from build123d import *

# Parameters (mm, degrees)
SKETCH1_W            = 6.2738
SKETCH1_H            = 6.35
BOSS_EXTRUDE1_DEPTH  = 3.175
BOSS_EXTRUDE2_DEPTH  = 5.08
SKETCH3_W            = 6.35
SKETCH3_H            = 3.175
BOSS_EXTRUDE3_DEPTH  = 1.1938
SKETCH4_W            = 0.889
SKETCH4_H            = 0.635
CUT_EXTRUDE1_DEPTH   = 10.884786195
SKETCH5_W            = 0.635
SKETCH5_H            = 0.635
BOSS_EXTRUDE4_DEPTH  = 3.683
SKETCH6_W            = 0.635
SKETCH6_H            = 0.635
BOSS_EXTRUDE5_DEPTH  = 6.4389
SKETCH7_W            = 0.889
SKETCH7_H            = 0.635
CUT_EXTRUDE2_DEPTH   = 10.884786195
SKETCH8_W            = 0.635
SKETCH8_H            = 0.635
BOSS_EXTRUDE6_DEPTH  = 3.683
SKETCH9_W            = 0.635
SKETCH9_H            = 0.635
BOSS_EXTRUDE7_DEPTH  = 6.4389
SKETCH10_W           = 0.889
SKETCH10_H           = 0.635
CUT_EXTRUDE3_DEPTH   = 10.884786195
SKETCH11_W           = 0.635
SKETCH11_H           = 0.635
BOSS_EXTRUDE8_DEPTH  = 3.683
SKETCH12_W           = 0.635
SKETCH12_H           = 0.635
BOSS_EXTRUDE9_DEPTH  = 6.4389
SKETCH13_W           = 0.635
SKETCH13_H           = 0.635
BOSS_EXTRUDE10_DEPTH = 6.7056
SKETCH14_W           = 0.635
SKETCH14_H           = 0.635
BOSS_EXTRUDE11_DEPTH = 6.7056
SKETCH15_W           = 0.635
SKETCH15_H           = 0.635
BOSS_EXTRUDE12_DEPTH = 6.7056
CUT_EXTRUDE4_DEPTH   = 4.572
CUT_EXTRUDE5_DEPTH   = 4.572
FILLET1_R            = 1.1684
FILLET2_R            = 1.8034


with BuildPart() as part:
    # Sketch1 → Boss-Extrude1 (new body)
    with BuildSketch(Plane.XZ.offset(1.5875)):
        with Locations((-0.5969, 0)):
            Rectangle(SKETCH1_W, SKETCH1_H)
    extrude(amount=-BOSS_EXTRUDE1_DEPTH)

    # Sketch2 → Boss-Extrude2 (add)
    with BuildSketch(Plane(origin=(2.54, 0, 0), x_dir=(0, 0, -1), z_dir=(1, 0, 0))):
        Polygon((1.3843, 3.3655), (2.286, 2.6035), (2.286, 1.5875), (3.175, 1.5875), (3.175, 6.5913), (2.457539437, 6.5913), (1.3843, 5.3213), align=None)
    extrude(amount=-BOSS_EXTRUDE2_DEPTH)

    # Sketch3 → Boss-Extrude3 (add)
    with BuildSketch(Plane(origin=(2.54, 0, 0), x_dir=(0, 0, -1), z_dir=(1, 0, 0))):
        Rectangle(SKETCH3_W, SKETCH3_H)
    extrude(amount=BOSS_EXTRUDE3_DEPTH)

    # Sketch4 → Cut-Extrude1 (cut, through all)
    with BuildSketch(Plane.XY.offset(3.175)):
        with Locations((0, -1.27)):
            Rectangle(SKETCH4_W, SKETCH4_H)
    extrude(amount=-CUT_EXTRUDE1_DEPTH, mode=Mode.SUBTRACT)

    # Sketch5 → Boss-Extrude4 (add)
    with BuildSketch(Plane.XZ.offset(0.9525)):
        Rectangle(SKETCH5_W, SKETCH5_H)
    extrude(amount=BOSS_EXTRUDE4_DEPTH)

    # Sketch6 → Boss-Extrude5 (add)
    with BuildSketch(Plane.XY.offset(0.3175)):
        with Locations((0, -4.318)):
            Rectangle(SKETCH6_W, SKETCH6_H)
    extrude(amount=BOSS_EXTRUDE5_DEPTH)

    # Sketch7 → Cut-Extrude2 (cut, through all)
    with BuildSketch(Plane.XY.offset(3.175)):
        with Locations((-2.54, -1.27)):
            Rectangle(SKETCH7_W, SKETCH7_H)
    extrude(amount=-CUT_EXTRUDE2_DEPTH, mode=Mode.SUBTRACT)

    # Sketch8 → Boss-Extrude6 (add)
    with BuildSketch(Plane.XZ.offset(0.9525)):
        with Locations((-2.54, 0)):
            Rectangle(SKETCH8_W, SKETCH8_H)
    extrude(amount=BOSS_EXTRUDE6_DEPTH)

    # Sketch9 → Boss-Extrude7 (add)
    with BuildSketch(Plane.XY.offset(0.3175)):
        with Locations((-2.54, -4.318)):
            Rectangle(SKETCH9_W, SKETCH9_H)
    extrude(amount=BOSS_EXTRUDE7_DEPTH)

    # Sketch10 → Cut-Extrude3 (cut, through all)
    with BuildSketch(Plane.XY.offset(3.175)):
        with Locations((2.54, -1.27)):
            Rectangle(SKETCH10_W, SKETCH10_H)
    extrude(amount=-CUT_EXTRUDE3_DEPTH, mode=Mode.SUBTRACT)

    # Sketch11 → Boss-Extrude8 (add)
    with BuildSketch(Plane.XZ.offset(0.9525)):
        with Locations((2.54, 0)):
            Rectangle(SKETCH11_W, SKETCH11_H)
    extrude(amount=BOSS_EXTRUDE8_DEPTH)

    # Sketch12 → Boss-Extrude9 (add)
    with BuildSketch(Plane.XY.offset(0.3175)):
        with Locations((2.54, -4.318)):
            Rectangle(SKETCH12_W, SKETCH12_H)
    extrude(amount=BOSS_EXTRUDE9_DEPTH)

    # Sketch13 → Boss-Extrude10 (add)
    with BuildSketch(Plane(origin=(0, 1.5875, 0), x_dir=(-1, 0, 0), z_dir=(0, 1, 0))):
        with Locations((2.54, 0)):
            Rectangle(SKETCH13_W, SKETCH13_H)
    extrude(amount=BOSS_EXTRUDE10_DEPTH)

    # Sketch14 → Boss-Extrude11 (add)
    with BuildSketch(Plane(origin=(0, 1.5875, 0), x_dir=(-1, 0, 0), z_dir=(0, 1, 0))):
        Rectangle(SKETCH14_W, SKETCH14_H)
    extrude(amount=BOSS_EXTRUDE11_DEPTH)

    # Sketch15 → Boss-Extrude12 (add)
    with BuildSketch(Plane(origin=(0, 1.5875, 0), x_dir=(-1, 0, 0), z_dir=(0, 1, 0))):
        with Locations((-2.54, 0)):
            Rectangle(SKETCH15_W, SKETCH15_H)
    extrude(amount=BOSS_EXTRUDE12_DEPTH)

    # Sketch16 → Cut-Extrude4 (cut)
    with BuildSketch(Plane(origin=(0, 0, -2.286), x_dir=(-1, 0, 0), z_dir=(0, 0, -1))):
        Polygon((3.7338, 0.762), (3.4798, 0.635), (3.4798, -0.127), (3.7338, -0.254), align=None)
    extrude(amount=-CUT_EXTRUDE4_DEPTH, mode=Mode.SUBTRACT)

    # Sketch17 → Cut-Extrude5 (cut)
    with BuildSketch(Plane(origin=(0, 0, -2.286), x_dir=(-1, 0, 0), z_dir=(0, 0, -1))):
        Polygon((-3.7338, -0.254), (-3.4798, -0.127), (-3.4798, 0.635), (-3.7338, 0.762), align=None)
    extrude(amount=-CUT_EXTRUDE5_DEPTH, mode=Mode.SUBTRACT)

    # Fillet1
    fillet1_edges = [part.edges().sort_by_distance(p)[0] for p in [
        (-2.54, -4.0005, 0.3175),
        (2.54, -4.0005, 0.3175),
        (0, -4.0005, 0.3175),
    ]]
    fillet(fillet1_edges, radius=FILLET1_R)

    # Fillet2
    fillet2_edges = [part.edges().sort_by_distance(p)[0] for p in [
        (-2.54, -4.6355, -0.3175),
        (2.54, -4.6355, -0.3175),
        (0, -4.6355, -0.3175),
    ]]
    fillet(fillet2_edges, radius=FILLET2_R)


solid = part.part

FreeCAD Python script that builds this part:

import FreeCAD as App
import Part
import Sketcher
Q = App.Units.Quantity


def edges_at(feature, points):
    """Names of the edges that pass closest to the given points."""
    edges = feature.Shape.Edges
    near = lambda p: min(range(len(edges)), key=lambda i: edges[i].distToShape(Part.Vertex(*p))[0])
    return sorted({f"Edge{near(p) + 1}" for p in points})


def add_polygon(sketch, points):
    """Adds a closed chain of lines whose ends are joined by coincident constraints."""
    first, n = sketch.GeometryCount, len(points)
    for a, b in zip(points, points[1:] + points[:1]):
        sketch.addGeometry(Part.LineSegment(App.Vector(*a, 0), App.Vector(*b, 0)), False)
    for i in range(n):
        sketch.addConstraint(Sketcher.Constraint("Coincident", first + i, 2, first + (i + 1) % n, 1))

doc = App.newDocument("Part")
params = doc.addObject("Spreadsheet::Sheet", "Params")
for row, (alias, value) in enumerate([
    ("sketch1_height", "0.25 in"),
    ("sketch1_width", "0.247 in"),
    ("pad1_length", "0.125 in"),
    ("sketch2_width", "0.04 in"),
    ("sketch2_width2", "0.197 in"),
    ("sketch2_width3", "0.077 in"),
    ("sketch2_height", "0.035 in"),
    ("pad2_length", "0.2 in"),
    ("sketch3_height", "0.25 in"),
    ("sketch3_width", "0.125 in"),
    ("pad3_length", "0.047 in"),
    ("sketch4_width", "0.035 in"),
    ("sketch4_height", "0.025 in"),
    ("sketch5_width", "0.025 in"),
    ("pad4_length", "0.145 in"),
    ("sketch6_width", "0.025 in"),
    ("pad5_length", "0.2535 in"),
    ("sketch7_width", "0.035 in"),
    ("sketch7_height", "0.025 in"),
    ("sketch8_width", "0.025 in"),
    ("pad6_length", "0.145 in"),
    ("sketch9_width", "0.025 in"),
    ("pad7_length", "0.2535 in"),
    ("sketch10_width", "0.035 in"),
    ("sketch10_height", "0.025 in"),
    ("sketch11_width", "0.025 in"),
    ("pad8_length", "0.145 in"),
    ("sketch12_width", "0.025 in"),
    ("pad9_length", "0.2535 in"),
    ("sketch13_width", "0.025 in"),
    ("pad10_length", "0.264 in"),
    ("sketch14_width", "0.025 in"),
    ("pad11_length", "0.264 in"),
    ("sketch15_width", "0.025 in"),
    ("pad12_length", "0.264 in"),
    ("sketch16_height", "0.03 in"),
    ("sketch16_height2", "0.04 in"),
    ("pocket4_length", "0.18 in"),
    ("sketch17_height", "0.03 in"),
    ("sketch17_height2", "0.04 in"),
    ("pocket5_length", "0.18 in"),
    ("fillet_radius", "0.046 in"),
    ("fillet2_radius", "0.071 in"),
], start=1):
    params.set(f"A{row}", alias)
    params.set(f"B{row}", "=" + value)
    params.setAlias(f"B{row}", alias)

body = doc.addObject("PartDesign::Body", "Body")

sketch1 = body.newObject("Sketcher::SketchObject", "Sketch")
sketch1.AttachmentSupport = (doc.getObject("XZ_Plane"), [""])
sketch1.MapMode = "FlatFace"
sketch1.AttachmentOffset = App.Placement(App.Vector(0, 0, 0.0625 * 25.4), App.Rotation())
add_polygon(sketch1, [(-4, 3), (-4, -3), (3, -3), (3, 3)])
sketch1.addConstraint([
    Sketcher.Constraint("Vertical", 0),
    Sketcher.Constraint("Horizontal", 1),
    Sketcher.Constraint("Vertical", 2),
    Sketcher.Constraint("Horizontal", 3),
    Sketcher.Constraint("DistanceY", 0, 2, 0, 1, Q("0.25 in")),
    Sketcher.Constraint("DistanceX", -1, 1, 1, 2, Q("0.1 in")),
    Sketcher.Constraint("DistanceX", 1, 1, 1, 2, Q("0.247 in")),
    Sketcher.Constraint("DistanceY", 0, 2, -1, 1, Q("0.125 in")),
])
sketch1.setExpression("Constraints[8]", "Params.sketch1_height")
sketch1.setExpression("Constraints[10]", "Params.sketch1_width")
pad1 = body.newObject("PartDesign::Pad", "Pad")
pad1.Profile = sketch1
pad1.setExpression("Length", "Params.pad1_length")
pad1.Reversed = True

sketch2 = body.newObject("Sketcher::SketchObject", "Sketch001")
sketch2.AttachmentSupport = (doc.getObject("YZ_Plane"), [""])
sketch2.MapMode = "FlatFace"
sketch2.AttachmentOffset = App.Placement(App.Vector(0, 0, 0.1 * 25.4), App.Rotation())
add_polygon(sketch2, [(3.4, -1.4), (2.6, -2.3), (1.6, -2.3), (1.6, -3.2), (6.6, -3.2), (6.6, -2.5), (5.3, -1.4)])
sketch2.addConstraint([
    Sketcher.Constraint("Horizontal", 1),
    Sketcher.Constraint("Vertical", 2),
    Sketcher.Constraint("Horizontal", 3),
    Sketcher.Constraint("Vertical", 4),
    Sketcher.Constraint("Horizontal", 6),
    Sketcher.Constraint("Perpendicular", 0, 5),
    Sketcher.Constraint("DistanceX", 1, 2, 1, 1, Q("0.04 in")),
    Sketcher.Constraint("DistanceX", 3, 1, 3, 2, Q("0.197 in")),
    Sketcher.Constraint("DistanceX", 6, 2, 6, 1, Q("0.077 in")),
    Sketcher.Constraint("DistanceY", 2, 2, 2, 1, Q("0.035 in")),
    Sketcher.Constraint("DistanceY", 0, 2, -1, 1, Q("0.09 in")),
    Sketcher.Constraint("DistanceX", 5, 2, 4, 2, Q("0.05 in")),
    Sketcher.Constraint("DistanceX", -1, 1, 1, 2, Q("0.0625 in")),
    Sketcher.Constraint("DistanceY", 5, 2, -1, 1, Q("0.0545 in")),
])
sketch2.setExpression("Constraints[13]", "Params.sketch2_width")
sketch2.setExpression("Constraints[14]", "Params.sketch2_width2")
sketch2.setExpression("Constraints[15]", "Params.sketch2_width3")
sketch2.setExpression("Constraints[16]", "Params.sketch2_height")
pad2 = body.newObject("PartDesign::Pad", "Pad001")
pad2.Profile = sketch2
pad2.setExpression("Length", "Params.pad2_length")
pad2.Reversed = True

sketch3 = body.newObject("Sketcher::SketchObject", "Sketch002")
sketch3.AttachmentSupport = (doc.getObject("YZ_Plane"), [""])
sketch3.MapMode = "FlatFace"
sketch3.AttachmentOffset = App.Placement(App.Vector(0, 0, 0.1 * 25.4), App.Rotation())
add_polygon(sketch3, [(1.6, 3.2), (-1.6, 3.2), (-1.6, -3.2), (1.6, -3.2)])
sketch3.addConstraint([
    Sketcher.Constraint("Horizontal", 0),
    Sketcher.Constraint("Vertical", 1),
    Sketcher.Constraint("Horizontal", 2),
    Sketcher.Constraint("Vertical", 3),
    Sketcher.Constraint("Symmetric", 0, 2, 2, 2, -1, 1),
    Sketcher.Constraint("DistanceY", 1, 2, 1, 1, Q("0.25 in")),
    Sketcher.Constraint("DistanceX", 0, 2, 0, 1, Q("0.125 in")),
])
sketch3.setExpression("Constraints[9]", "Params.sketch3_height")
sketch3.setExpression("Constraints[10]", "Params.sketch3_width")
pad3 = body.newObject("PartDesign::Pad", "Pad002")
pad3.Profile = sketch3
pad3.setExpression("Length", "Params.pad3_length")

sketch4 = body.newObject("Sketcher::SketchObject", "Sketch003")
sketch4.AttachmentSupport = (doc.getObject("XY_Plane"), [""])
sketch4.MapMode = "FlatFace"
sketch4.AttachmentOffset = App.Placement(App.Vector(0, 0, 0.125 * 25.4), App.Rotation())
add_polygon(sketch4, [(-0.4, -1), (-0.4, -1.6), (0.4, -1.6), (0.4, -1)])
sketch4.addConstraint([
    Sketcher.Constraint("Vertical", 0),
    Sketcher.Constraint("Horizontal", 1),
    Sketcher.Constraint("Vertical", 2),
    Sketcher.Constraint("Horizontal", 3),
    Sketcher.Constraint("DistanceX", 1, 1, 1, 2, Q("0.035 in")),
    Sketcher.Constraint("DistanceY", 0, 2, 0, 1, Q("0.025 in")),
    Sketcher.Constraint("DistanceY", 0, 2, -1, 1, Q("0.0625 in")),
    Sketcher.Constraint("DistanceX", 0, 2, -1, 1, Q("0.0175 in")),
])
sketch4.setExpression("Constraints[8]", "Params.sketch4_width")
sketch4.setExpression("Constraints[9]", "Params.sketch4_height")
pocket1 = body.newObject("PartDesign::Pocket", "Pocket")
pocket1.Profile = sketch4
pocket1.Type = "ThroughAll"

sketch5 = body.newObject("Sketcher::SketchObject", "Sketch004")
sketch5.AttachmentSupport = (doc.getObject("XZ_Plane"), [""])
sketch5.MapMode = "FlatFace"
sketch5.AttachmentOffset = App.Placement(App.Vector(0, 0, 0.0375 * 25.4), App.Rotation())
add_polygon(sketch5, [(-0.3, 0.3), (-0.3, -0.3), (0.3, -0.3), (0.3, 0.3)])
sketch5.addConstraint([
    Sketcher.Constraint("Vertical", 0),
    Sketcher.Constraint("Horizontal", 1),
    Sketcher.Constraint("Vertical", 2),
    Sketcher.Constraint("Horizontal", 3),
    Sketcher.Constraint("Symmetric", 0, 2, 2, 2, -1, 1),
    Sketcher.Constraint("Equal", 3, 0),
    Sketcher.Constraint("DistanceX", 1, 1, 1, 2, Q("0.025 in")),
])
sketch5.setExpression("Constraints[10]", "Params.sketch5_width")
pad4 = body.newObject("PartDesign::Pad", "Pad003")
pad4.Profile = sketch5
pad4.setExpression("Length", "Params.pad4_length")

sketch6 = body.newObject("Sketcher::SketchObject", "Sketch005")
sketch6.AttachmentSupport = (doc.getObject("XY_Plane"), [""])
sketch6.MapMode = "FlatFace"
sketch6.AttachmentOffset = App.Placement(App.Vector(0, 0, 0.0125 * 25.4), App.Rotation())
add_polygon(sketch6, [(-0.3, -4), (-0.3, -4.6), (0.3, -4.6), (0.3, -4)])
sketch6.addConstraint([
    Sketcher.Constraint("Vertical", 0),
    Sketcher.Constraint("Horizontal", 1),
    Sketcher.Constraint("Vertical", 2),
    Sketcher.Constraint("Horizontal", 3),
    Sketcher.Constraint("Equal", 3, 0),
    Sketcher.Constraint("DistanceX", 1, 1, 1, 2, Q("0.025 in")),
    Sketcher.Constraint("DistanceX", 0, 2, -1, 1, Q("0.0125 in")),
    Sketcher.Constraint("DistanceY", 0, 2, -1, 1, Q("0.1825 in")),
])
sketch6.setExpression("Constraints[9]", "Params.sketch6_width")
pad5 = body.newObject("PartDesign::Pad", "Pad004")
pad5.Profile = sketch6
pad5.setExpression("Length", "Params.pad5_length")

sketch7 = body.newObject("Sketcher::SketchObject", "Sketch006")
sketch7.AttachmentSupport = (doc.getObject("XY_Plane"), [""])
sketch7.MapMode = "FlatFace"
sketch7.AttachmentOffset = App.Placement(App.Vector(0, 0, 0.125 * 25.4), App.Rotation())
add_polygon(sketch7, [(-3, -1), (-3, -1.6), (-2.1, -1.6), (-2.1, -1)])
sketch7.addConstraint([
    Sketcher.Constraint("Vertical", 0),
    Sketcher.Constraint("Horizontal", 1),
    Sketcher.Constraint("Vertical", 2),
    Sketcher.Constraint("Horizontal", 3),
    Sketcher.Constraint("DistanceX", 1, 1, 1, 2, Q("0.035 in")),
    Sketcher.Constraint("DistanceY", 0, 2, 0, 1, Q("0.025 in")),
    Sketcher.Constraint("DistanceY", 0, 2, -1, 1, Q("0.0625 in")),
    Sketcher.Constraint("DistanceX", 0, 2, -1, 1, Q("0.1175 in")),
])
sketch7.setExpression("Constraints[8]", "Params.sketch7_width")
sketch7.setExpression("Constraints[9]", "Params.sketch7_height")
pocket2 = body.newObject("PartDesign::Pocket", "Pocket001")
pocket2.Profile = sketch7
pocket2.Type = "ThroughAll"

sketch8 = body.newObject("Sketcher::SketchObject", "Sketch007")
sketch8.AttachmentSupport = (doc.getObject("XZ_Plane"), [""])
sketch8.MapMode = "FlatFace"
sketch8.AttachmentOffset = App.Placement(App.Vector(0, 0, 0.0375 * 25.4), App.Rotation())
add_polygon(sketch8, [(-2.9, 0.3), (-2.9, -0.3), (-2.2, -0.3), (-2.2, 0.3)])
sketch8.addConstraint([
    Sketcher.Constraint("Vertical", 0),
    Sketcher.Constraint("Horizontal", 1),
    Sketcher.Constraint("Vertical", 2),
    Sketcher.Constraint("Horizontal", 3),
    Sketcher.Constraint("Equal", 3, 0),
    Sketcher.Constraint("DistanceX", 1, 1, 1, 2, Q("0.025 in")),
    Sketcher.Constraint("DistanceX", 0, 2, -1, 1, Q("0.1125 in")),
    Sketcher.Constraint("DistanceY", 0, 2, -1, 1, Q("0.0125 in")),
])
sketch8.setExpression("Constraints[9]", "Params.sketch8_width")
pad6 = body.newObject("PartDesign::Pad", "Pad005")
pad6.Profile = sketch8
pad6.setExpression("Length", "Params.pad6_length")

sketch9 = body.newObject("Sketcher::SketchObject", "Sketch008")
sketch9.AttachmentSupport = (doc.getObject("XY_Plane"), [""])
sketch9.MapMode = "FlatFace"
sketch9.AttachmentOffset = App.Placement(App.Vector(0, 0, 0.0125 * 25.4), App.Rotation())
add_polygon(sketch9, [(-2.9, -4), (-2.9, -4.6), (-2.2, -4.6), (-2.2, -4)])
sketch9.addConstraint([
    Sketcher.Constraint("Vertical", 0),
    Sketcher.Constraint("Horizontal", 1),
    Sketcher.Constraint("Vertical", 2),
    Sketcher.Constraint("Horizontal", 3),
    Sketcher.Constraint("Equal", 3, 0),
    Sketcher.Constraint("DistanceX", 1, 1, 1, 2, Q("0.025 in")),
    Sketcher.Constraint("DistanceX", 0, 2, -1, 1, Q("0.1125 in")),
    Sketcher.Constraint("DistanceY", 0, 2, -1, 1, Q("0.1825 in")),
])
sketch9.setExpression("Constraints[9]", "Params.sketch9_width")
pad7 = body.newObject("PartDesign::Pad", "Pad006")
pad7.Profile = sketch9
pad7.setExpression("Length", "Params.pad7_length")

sketch10 = body.newObject("Sketcher::SketchObject", "Sketch009")
sketch10.AttachmentSupport = (doc.getObject("XY_Plane"), [""])
sketch10.MapMode = "FlatFace"
sketch10.AttachmentOffset = App.Placement(App.Vector(0, 0, 0.125 * 25.4), App.Rotation())
add_polygon(sketch10, [(2.1, -1), (2.1, -1.6), (3, -1.6), (3, -1)])
sketch10.addConstraint([
    Sketcher.Constraint("Vertical", 0),
    Sketcher.Constraint("Horizontal", 1),
    Sketcher.Constraint("Vertical", 2),
    Sketcher.Constraint("Horizontal", 3),
    Sketcher.Constraint("DistanceX", 1, 1, 1, 2, Q("0.035 in")),
    Sketcher.Constraint("DistanceY", 0, 2, 0, 1, Q("0.025 in")),
    Sketcher.Constraint("DistanceY", 0, 2, -1, 1, Q("0.0625 in")),
    Sketcher.Constraint("DistanceX", -1, 1, 0, 2, Q("0.0825 in")),
])
sketch10.setExpression("Constraints[8]", "Params.sketch10_width")
sketch10.setExpression("Constraints[9]", "Params.sketch10_height")
pocket3 = body.newObject("PartDesign::Pocket", "Pocket002")
pocket3.Profile = sketch10
pocket3.Type = "ThroughAll"

sketch11 = body.newObject("Sketcher::SketchObject", "Sketch010")
sketch11.AttachmentSupport = (doc.getObject("XZ_Plane"), [""])
sketch11.MapMode = "FlatFace"
sketch11.AttachmentOffset = App.Placement(App.Vector(0, 0, 0.0375 * 25.4), App.Rotation())
add_polygon(sketch11, [(2.2, 0.3), (2.2, -0.3), (2.9, -0.3), (2.9, 0.3)])
sketch11.addConstraint([
    Sketcher.Constraint("Vertical", 0),
    Sketcher.Constraint("Horizontal", 1),
    Sketcher.Constraint("Vertical", 2),
    Sketcher.Constraint("Horizontal", 3),
    Sketcher.Constraint("Equal", 3, 0),
    Sketcher.Constraint("DistanceX", 1, 1, 1, 2, Q("0.025 in")),
    Sketcher.Constraint("DistanceX", -1, 1, 0, 2, Q("0.0875 in")),
    Sketcher.Constraint("DistanceY", 0, 2, -1, 1, Q("0.0125 in")),
])
sketch11.setExpression("Constraints[9]", "Params.sketch11_width")
pad8 = body.newObject("PartDesign::Pad", "Pad007")
pad8.Profile = sketch11
pad8.setExpression("Length", "Params.pad8_length")

sketch12 = body.newObject("Sketcher::SketchObject", "Sketch011")
sketch12.AttachmentSupport = (doc.getObject("XY_Plane"), [""])
sketch12.MapMode = "FlatFace"
sketch12.AttachmentOffset = App.Placement(App.Vector(0, 0, 0.0125 * 25.4), App.Rotation())
add_polygon(sketch12, [(2.2, -4), (2.2, -4.6), (2.9, -4.6), (2.9, -4)])
sketch12.addConstraint([
    Sketcher.Constraint("Vertical", 0),
    Sketcher.Constraint("Horizontal", 1),
    Sketcher.Constraint("Vertical", 2),
    Sketcher.Constraint("Horizontal", 3),
    Sketcher.Constraint("Equal", 3, 0),
    Sketcher.Constraint("DistanceX", 1, 1, 1, 2, Q("0.025 in")),
    Sketcher.Constraint("DistanceX", -1, 1, 0, 2, Q("0.0875 in")),
    Sketcher.Constraint("DistanceY", 0, 2, -1, 1, Q("0.1825 in")),
])
sketch12.setExpression("Constraints[9]", "Params.sketch12_width")
pad9 = body.newObject("PartDesign::Pad", "Pad008")
pad9.Profile = sketch12
pad9.setExpression("Length", "Params.pad9_length")

sketch13 = body.newObject("Sketcher::SketchObject", "Sketch012")
sketch13.AttachmentSupport = (doc.getObject("XZ_Plane"), [""])
sketch13.MapMode = "FlatFace"
sketch13.AttachmentOffset = App.Placement(App.Vector(0, 0, -0.0625 * 25.4), App.Rotation())
add_polygon(sketch13, [(-2.2, 0.3), (-2.2, -0.3), (-2.9, -0.3), (-2.9, 0.3)])
sketch13.addConstraint([
    Sketcher.Constraint("Vertical", 0),
    Sketcher.Constraint("Horizontal", 1),
    Sketcher.Constraint("Vertical", 2),
    Sketcher.Constraint("Horizontal", 3),
    Sketcher.Constraint("Equal", 3, 0),
    Sketcher.Constraint("DistanceX", 1, 2, 1, 1, Q("0.025 in")),
    Sketcher.Constraint("DistanceX", 0, 2, -1, 1, Q("0.0875 in")),
    Sketcher.Constraint("DistanceY", 0, 2, -1, 1, Q("0.0125 in")),
])
sketch13.setExpression("Constraints[9]", "Params.sketch13_width")
pad10 = body.newObject("PartDesign::Pad", "Pad009")
pad10.Profile = sketch13
pad10.setExpression("Length", "Params.pad10_length")
pad10.Reversed = True

sketch14 = body.newObject("Sketcher::SketchObject", "Sketch013")
sketch14.AttachmentSupport = (doc.getObject("XZ_Plane"), [""])
sketch14.MapMode = "FlatFace"
sketch14.AttachmentOffset = App.Placement(App.Vector(0, 0, -0.0625 * 25.4), App.Rotation())
add_polygon(sketch14, [(0.3, 0.3), (0.3, -0.3), (-0.3, -0.3), (-0.3, 0.3)])
sketch14.addConstraint([
    Sketcher.Constraint("Vertical", 0),
    Sketcher.Constraint("Horizontal", 1),
    Sketcher.Constraint("Vertical", 2),
    Sketcher.Constraint("Horizontal", 3),
    Sketcher.Constraint("Symmetric", 0, 2, 2, 2, -1, 1),
    Sketcher.Constraint("Equal", 3, 0),
    Sketcher.Constraint("DistanceX", 1, 2, 1, 1, Q("0.025 in")),
])
sketch14.setExpression("Constraints[10]", "Params.sketch14_width")
pad11 = body.newObject("PartDesign::Pad", "Pad010")
pad11.Profile = sketch14
pad11.setExpression("Length", "Params.pad11_length")
pad11.Reversed = True

sketch15 = body.newObject("Sketcher::SketchObject", "Sketch014")
sketch15.AttachmentSupport = (doc.getObject("XZ_Plane"), [""])
sketch15.MapMode = "FlatFace"
sketch15.AttachmentOffset = App.Placement(App.Vector(0, 0, -0.0625 * 25.4), App.Rotation())
add_polygon(sketch15, [(2.9, 0.3), (2.9, -0.3), (2.2, -0.3), (2.2, 0.3)])
sketch15.addConstraint([
    Sketcher.Constraint("Vertical", 0),
    Sketcher.Constraint("Horizontal", 1),
    Sketcher.Constraint("Vertical", 2),
    Sketcher.Constraint("Horizontal", 3),
    Sketcher.Constraint("Equal", 3, 0),
    Sketcher.Constraint("DistanceX", 1, 2, 1, 1, Q("0.025 in")),
    Sketcher.Constraint("DistanceX", -1, 1, 0, 2, Q("0.1125 in")),
    Sketcher.Constraint("DistanceY", 0, 2, -1, 1, Q("0.0125 in")),
])
sketch15.setExpression("Constraints[9]", "Params.sketch15_width")
pad12 = body.newObject("PartDesign::Pad", "Pad011")
pad12.Profile = sketch15
pad12.setExpression("Length", "Params.pad12_length")
pad12.Reversed = True

sketch16 = body.newObject("Sketcher::SketchObject", "Sketch015")
sketch16.AttachmentSupport = (doc.getObject("XY_Plane"), [""])
sketch16.MapMode = "FlatFace"
sketch16.AttachmentOffset = App.Placement(App.Vector(0, 0, -0.09 * 25.4), App.Rotation())
add_polygon(sketch16, [(-3.73, 0.76), (-3.48, 0.64), (-3.48, -0.13), (-3.73, -0.25)])
sketch16.addConstraint([
    Sketcher.Constraint("Vertical", 1),
    Sketcher.Constraint("Vertical", 3),
    Sketcher.Constraint("Equal", 0, 2),
    Sketcher.Constraint("DistanceY", 1, 2, 1, 1, Q("0.03 in")),
    Sketcher.Constraint("DistanceY", 3, 1, 3, 2, Q("0.04 in")),
    Sketcher.Constraint("DistanceY", 2, 2, -1, 1, Q("0.01 in")),
    Sketcher.Constraint("DistanceX", 2, 2, 1, 2, Q("0.01 in")),
    Sketcher.Constraint("DistanceX", 0, 2, -1, 1, Q("0.137 in")),
])
sketch16.setExpression("Constraints[7]", "Params.sketch16_height")
sketch16.setExpression("Constraints[8]", "Params.sketch16_height2")
pocket4 = body.newObject("PartDesign::Pocket", "Pocket003")
pocket4.Profile = sketch16
pocket4.setExpression("Length", "Params.pocket4_length")
pocket4.Reversed = True

sketch17 = body.newObject("Sketcher::SketchObject", "Sketch016")
sketch17.AttachmentSupport = (doc.getObject("XY_Plane"), [""])
sketch17.MapMode = "FlatFace"
sketch17.AttachmentOffset = App.Placement(App.Vector(0, 0, -0.09 * 25.4), App.Rotation())
add_polygon(sketch17, [(3.73, -0.25), (3.48, -0.13), (3.48, 0.64), (3.73, 0.76)])
sketch17.addConstraint([
    Sketcher.Constraint("Vertical", 1),
    Sketcher.Constraint("Vertical", 3),
    Sketcher.Constraint("Equal", 0, 2),
    Sketcher.Constraint("DistanceY", 1, 1, 1, 2, Q("0.03 in")),
    Sketcher.Constraint("DistanceY", 3, 2, 3, 1, Q("0.04 in")),
    Sketcher.Constraint("DistanceY", -1, 1, 2, 2, Q("0.03 in")),
    Sketcher.Constraint("DistanceX", 1, 2, 2, 2, Q("0.01 in")),
    Sketcher.Constraint("DistanceX", -1, 1, 0, 2, Q("0.137 in")),
])
sketch17.setExpression("Constraints[7]", "Params.sketch17_height")
sketch17.setExpression("Constraints[8]", "Params.sketch17_height2")
pocket5 = body.newObject("PartDesign::Pocket", "Pocket004")
pocket5.Profile = sketch17
pocket5.setExpression("Length", "Params.pocket5_length")
pocket5.Reversed = True
doc.recompute()

fillet = body.newObject("PartDesign::Fillet", "Fillet")
fillet.Base = (pocket5, edges_at(pocket5, [(-2.54, -4, 0.318), (2.54, -4, 0.318), (0, -4, 0.318)]))
fillet.setExpression("Radius", "Params.fillet_radius")
doc.recompute()

fillet2 = body.newObject("PartDesign::Fillet", "Fillet001")
fillet2.Base = (fillet, edges_at(fillet, [(-2.54, -4.636, -0.318), (2.54, -4.636, -0.318), (0, -4.636, -0.318)]))
fillet2.setExpression("Radius", "Params.fillet2_radius")

doc.recompute()
